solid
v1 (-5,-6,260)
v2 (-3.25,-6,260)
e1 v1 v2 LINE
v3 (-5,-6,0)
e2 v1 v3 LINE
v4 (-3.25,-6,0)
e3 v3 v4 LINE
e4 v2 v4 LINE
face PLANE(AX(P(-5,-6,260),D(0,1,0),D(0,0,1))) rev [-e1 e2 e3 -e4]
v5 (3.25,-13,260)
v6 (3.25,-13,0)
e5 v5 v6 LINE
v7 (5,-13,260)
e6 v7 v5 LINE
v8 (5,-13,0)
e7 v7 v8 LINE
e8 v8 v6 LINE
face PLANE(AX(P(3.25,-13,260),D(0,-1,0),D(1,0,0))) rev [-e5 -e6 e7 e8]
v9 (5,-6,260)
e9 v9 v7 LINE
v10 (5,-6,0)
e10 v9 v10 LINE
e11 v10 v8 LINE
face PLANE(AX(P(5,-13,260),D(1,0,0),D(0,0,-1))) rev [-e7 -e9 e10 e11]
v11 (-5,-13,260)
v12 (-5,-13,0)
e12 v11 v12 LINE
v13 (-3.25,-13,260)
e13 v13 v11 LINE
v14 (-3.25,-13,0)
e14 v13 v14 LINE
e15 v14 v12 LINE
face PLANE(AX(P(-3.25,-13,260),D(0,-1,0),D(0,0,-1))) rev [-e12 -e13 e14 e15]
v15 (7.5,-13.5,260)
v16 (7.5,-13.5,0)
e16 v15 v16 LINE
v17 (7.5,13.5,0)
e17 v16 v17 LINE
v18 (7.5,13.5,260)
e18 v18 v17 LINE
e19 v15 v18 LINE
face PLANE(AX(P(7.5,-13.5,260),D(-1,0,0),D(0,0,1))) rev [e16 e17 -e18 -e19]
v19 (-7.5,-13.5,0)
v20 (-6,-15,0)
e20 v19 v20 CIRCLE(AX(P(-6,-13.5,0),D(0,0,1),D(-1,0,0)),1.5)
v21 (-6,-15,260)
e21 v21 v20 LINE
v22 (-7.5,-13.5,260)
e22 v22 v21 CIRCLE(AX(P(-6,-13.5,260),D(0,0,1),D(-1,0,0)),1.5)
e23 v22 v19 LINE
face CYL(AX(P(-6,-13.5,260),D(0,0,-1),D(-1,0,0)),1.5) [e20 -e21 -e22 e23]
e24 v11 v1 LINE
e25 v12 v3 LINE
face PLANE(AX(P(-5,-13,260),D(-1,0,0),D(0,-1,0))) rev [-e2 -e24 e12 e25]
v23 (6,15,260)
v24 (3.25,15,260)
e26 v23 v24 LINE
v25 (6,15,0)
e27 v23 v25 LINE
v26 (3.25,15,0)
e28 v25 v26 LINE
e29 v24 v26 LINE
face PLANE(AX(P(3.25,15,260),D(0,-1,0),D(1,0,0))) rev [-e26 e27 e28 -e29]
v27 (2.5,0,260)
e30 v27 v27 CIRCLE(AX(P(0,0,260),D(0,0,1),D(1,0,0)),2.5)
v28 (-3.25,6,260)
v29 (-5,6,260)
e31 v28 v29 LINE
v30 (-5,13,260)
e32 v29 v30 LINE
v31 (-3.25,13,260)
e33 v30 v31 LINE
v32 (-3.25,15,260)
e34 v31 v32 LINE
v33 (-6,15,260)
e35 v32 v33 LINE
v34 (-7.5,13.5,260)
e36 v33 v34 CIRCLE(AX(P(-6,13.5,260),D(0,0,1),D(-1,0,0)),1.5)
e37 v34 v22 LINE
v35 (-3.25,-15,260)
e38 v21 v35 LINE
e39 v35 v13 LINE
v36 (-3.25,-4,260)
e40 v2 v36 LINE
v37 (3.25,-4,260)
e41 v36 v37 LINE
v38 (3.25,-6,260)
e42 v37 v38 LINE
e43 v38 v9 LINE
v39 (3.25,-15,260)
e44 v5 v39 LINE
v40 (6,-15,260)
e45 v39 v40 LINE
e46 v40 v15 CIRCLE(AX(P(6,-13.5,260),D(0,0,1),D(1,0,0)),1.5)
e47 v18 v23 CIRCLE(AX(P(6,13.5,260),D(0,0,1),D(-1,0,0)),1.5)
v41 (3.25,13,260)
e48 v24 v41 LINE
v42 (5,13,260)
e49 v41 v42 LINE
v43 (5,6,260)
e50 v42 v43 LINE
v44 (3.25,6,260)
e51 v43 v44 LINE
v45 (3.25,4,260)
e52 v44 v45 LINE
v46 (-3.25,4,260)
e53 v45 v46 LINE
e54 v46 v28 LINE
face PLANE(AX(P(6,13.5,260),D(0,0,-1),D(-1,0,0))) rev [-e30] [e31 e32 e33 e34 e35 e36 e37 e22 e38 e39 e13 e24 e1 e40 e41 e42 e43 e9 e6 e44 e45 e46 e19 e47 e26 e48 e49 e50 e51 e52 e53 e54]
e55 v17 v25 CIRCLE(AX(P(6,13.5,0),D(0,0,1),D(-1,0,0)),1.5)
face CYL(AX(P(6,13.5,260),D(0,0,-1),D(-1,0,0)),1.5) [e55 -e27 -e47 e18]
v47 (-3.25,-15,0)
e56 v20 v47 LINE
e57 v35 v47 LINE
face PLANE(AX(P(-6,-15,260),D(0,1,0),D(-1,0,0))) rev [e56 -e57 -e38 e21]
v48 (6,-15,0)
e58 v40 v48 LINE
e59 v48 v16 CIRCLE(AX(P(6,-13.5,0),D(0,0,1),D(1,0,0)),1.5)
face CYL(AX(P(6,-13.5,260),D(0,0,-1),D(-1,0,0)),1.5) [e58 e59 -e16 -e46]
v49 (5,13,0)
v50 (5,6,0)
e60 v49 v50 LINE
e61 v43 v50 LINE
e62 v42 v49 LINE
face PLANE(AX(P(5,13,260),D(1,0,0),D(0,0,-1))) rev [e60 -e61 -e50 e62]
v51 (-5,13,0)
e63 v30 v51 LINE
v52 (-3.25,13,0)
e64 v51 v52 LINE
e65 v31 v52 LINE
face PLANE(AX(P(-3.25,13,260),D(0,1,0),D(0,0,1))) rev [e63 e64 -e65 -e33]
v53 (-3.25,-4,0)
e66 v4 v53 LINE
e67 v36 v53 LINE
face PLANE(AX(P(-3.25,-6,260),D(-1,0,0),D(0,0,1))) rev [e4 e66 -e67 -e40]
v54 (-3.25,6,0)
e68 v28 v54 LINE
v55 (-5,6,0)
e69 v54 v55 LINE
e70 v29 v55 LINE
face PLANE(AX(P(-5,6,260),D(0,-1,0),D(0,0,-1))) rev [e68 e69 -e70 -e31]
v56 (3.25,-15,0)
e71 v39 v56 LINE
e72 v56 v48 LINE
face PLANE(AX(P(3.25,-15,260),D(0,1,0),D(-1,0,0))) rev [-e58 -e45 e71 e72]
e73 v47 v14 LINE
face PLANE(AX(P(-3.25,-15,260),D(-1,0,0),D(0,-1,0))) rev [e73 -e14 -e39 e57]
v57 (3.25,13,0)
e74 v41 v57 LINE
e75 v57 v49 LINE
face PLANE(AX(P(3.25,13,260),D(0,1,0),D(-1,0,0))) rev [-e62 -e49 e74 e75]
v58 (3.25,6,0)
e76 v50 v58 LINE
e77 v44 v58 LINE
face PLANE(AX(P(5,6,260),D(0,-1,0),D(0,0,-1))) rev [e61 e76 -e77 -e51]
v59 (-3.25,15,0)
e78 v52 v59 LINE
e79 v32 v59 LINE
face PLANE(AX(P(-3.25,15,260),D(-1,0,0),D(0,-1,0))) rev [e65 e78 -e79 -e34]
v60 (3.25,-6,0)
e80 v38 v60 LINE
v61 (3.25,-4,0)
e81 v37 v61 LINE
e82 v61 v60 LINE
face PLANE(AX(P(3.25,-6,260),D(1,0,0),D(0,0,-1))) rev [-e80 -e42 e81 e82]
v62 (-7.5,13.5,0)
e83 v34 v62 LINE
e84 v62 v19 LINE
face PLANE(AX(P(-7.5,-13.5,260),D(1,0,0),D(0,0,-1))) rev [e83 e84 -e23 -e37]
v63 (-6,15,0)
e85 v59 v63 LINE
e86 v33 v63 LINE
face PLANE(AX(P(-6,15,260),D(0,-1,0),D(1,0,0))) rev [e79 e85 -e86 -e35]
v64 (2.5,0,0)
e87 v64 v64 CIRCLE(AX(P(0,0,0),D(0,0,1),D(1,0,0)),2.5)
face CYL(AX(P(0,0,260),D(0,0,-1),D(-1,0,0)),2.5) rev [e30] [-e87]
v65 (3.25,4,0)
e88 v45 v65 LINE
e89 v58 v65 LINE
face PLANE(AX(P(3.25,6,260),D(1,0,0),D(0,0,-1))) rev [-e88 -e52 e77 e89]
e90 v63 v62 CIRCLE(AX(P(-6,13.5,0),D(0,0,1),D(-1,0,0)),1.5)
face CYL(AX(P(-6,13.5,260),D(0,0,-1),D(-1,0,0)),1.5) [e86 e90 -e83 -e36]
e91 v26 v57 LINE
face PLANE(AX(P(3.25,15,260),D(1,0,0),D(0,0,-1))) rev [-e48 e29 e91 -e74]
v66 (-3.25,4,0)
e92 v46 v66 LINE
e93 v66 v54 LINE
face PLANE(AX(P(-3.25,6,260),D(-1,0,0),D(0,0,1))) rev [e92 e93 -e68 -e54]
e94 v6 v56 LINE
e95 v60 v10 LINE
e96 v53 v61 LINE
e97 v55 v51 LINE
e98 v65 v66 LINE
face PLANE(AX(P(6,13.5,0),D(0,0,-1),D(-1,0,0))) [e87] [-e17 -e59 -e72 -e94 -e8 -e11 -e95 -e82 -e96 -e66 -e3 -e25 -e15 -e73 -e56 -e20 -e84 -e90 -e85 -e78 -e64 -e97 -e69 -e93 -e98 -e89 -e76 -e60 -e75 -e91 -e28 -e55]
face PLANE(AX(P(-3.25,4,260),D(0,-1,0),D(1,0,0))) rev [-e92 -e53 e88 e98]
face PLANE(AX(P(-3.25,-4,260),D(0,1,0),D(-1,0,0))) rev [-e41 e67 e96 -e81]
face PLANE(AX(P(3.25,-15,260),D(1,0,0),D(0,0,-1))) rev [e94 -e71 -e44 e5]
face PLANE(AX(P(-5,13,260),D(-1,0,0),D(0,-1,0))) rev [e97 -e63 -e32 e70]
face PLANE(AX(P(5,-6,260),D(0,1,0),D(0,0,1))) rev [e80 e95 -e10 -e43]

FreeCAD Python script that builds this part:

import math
import FreeCAD as App
import Part
import Sketcher

doc = App.newDocument("Part")
body = doc.addObject("PartDesign::Body", "Body")

# Sketch on XY plane
sketch1 = body.newObject("Sketcher::SketchObject", "Sketch")
sketch1.AttachmentSupport = (doc.getObject("XY_Plane"), [""])
sketch1.MapMode = "FlatFace"
sketch1.addGeometry([
    Part.LineSegment(App.Vector(-6, -15, 0), App.Vector(-3.2, -15, 0)),  # 0
    Part.LineSegment(App.Vector(-3.2, -15, 0), App.Vector(-3.2, -13, 0)),  # 1
    Part.LineSegment(App.Vector(-3.2, -13, 0), App.Vector(-5, -13, 0)),  # 2
    Part.LineSegment(App.Vector(-5, -13, 0), App.Vector(-5, -6, 0)),  # 3
    Part.LineSegment(App.Vector(-5, -6, 0), App.Vector(-3.2, -6, 0)),  # 4
    Part.LineSegment(App.Vector(-3.2, -6, 0), App.Vector(-3.2, -4, 0)),  # 5
    Part.LineSegment(App.Vector(-3.2, -4, 0), App.Vector(3.2, -4, 0)),  # 6
    Part.LineSegment(App.Vector(3.2, -4, 0), App.Vector(3.2, -6, 0)),  # 7
    Part.LineSegment(App.Vector(3.2, -6, 0), App.Vector(5, -6, 0)),  # 8
    Part.LineSegment(App.Vector(5, -6, 0), App.Vector(5, -13, 0)),  # 9
    Part.LineSegment(App.Vector(5, -13, 0), App.Vector(3.2, -13, 0)),  # 10
    Part.LineSegment(App.Vector(3.2, -13, 0), App.Vector(3.2, -15, 0)),  # 11
    Part.LineSegment(App.Vector(3.2, -15, 0), App.Vector(6, -15, 0)),  # 12
    Part.ArcOfCircle(Part.Circle(App.Vector(6, -13.5, 0), App.Vector(0, 0, 1), 1.5), math.radians(-90), math.radians(0)),  # 13
    Part.LineSegment(App.Vector(7.5, -13.5, 0), App.Vector(7.5, 13.5, 0)),  # 14
    Part.ArcOfCircle(Part.Circle(App.Vector(6, 13.5, 0), App.Vector(0, 0, 1), 1.5), math.radians(0), math.radians(90)),  # 15
    Part.LineSegment(App.Vector(6, 15, 0), App.Vector(3.2, 15, 0)),  # 16
    Part.LineSegment(App.Vector(3.2, 15, 0), App.Vector(3.2, 13, 0)),  # 17
    Part.LineSegment(App.Vector(3.2, 13, 0), App.Vector(5, 13, 0)),  # 18
    Part.LineSegment(App.Vector(5, 13, 0), App.Vector(5, 6, 0)),  # 19
    Part.LineSegment(App.Vector(5, 6, 0), App.Vector(3.2, 6, 0)),  # 20
    Part.LineSegment(App.Vector(3.2, 6, 0), App.Vector(3.2, 4, 0)),  # 21
    Part.LineSegment(App.Vector(3.2, 4, 0), App.Vector(-3.2, 4, 0)),  # 22
    Part.LineSegment(App.Vector(-3.2, 4, 0), App.Vector(-3.2, 6, 0)),  # 23
    Part.LineSegment(App.Vector(-3.2, 6, 0), App.Vector(-5, 6, 0)),  # 24
    Part.LineSegment(App.Vector(-5, 6, 0), App.Vector(-5, 13, 0)),  # 25
    Part.LineSegment(App.Vector(-5, 13, 0), App.Vector(-3.2, 13, 0)),  # 26
    Part.LineSegment(App.Vector(-3.2, 13, 0), App.Vector(-3.2, 15, 0)),  # 27
    Part.LineSegment(App.Vector(-3.2, 15, 0), App.Vector(-6, 15, 0)),  # 28
    Part.ArcOfCircle(Part.Circle(App.Vector(-6, 13.5, 0), App.Vector(0, 0, 1), 1.5), math.radians(90), math.radians(180)),  # 29
    Part.LineSegment(App.Vector(-7.5, 13.5, 0), App.Vector(-7.5, -13.5, 0)),  # 30
    Part.ArcOfCircle(Part.Circle(App.Vector(-6, -13.5, 0), App.Vector(0, 0, 1), 1.5), math.radians(180), math.radians(270)),  # 31
    Part.Circle(App.Vector(0, 0, 0), App.Vector(0, 0, 1), 2.5),  # 32
], False)
sketch1.addConstraint([
    Sketcher.Constraint("Coincident", 0, 2, 1, 1),
    Sketcher.Constraint("Coincident", 1, 2, 2, 1),
    Sketcher.Constraint("Coincident", 2, 2, 3, 1),
    Sketcher.Constraint("Coincident", 3, 2, 4, 1),
    Sketcher.Constraint("Coincident", 4, 2, 5, 1),
    Sketcher.Constraint("Coincident", 5, 2, 6, 1),
    Sketcher.Constraint("Coincident", 6, 2, 7, 1),
    Sketcher.Constraint("Coincident", 7, 2, 8, 1),
    Sketcher.Constraint("Coincident", 8, 2, 9, 1),
    Sketcher.Constraint("Coincident", 9, 2, 10, 1),
    Sketcher.Constraint("Coincident", 10, 2, 11, 1),
    Sketcher.Constraint("Coincident", 11, 2, 12, 1),
    Sketcher.Constraint("Tangent", 12, 2, 13, 1),
    Sketcher.Constraint("Tangent", 13, 2, 14, 1),
    Sketcher.Constraint("Tangent", 14, 2, 15, 1),
    Sketcher.Constraint("Tangent", 15, 2, 16, 1),
    Sketcher.Constraint("Coincident", 16, 2, 17, 1),
    Sketcher.Constraint("Coincident", 17, 2, 18, 1),
    Sketcher.Constraint("Coincident", 18, 2, 19, 1),
    Sketcher.Constraint("Coincident", 19, 2, 20, 1),
    Sketcher.Constraint("Coincident", 20, 2, 21, 1),
    Sketcher.Constraint("Coincident", 21, 2, 22, 1),
    Sketcher.Constraint("Coincident", 22, 2, 23, 1),
    Sketcher.Constraint("Coincident", 23, 2, 24, 1),
    Sketcher.Constraint("Coincident", 24, 2, 25, 1),
    Sketcher.Constraint("Coincident", 25, 2, 26, 1),
    Sketcher.Constraint("Coincident", 26, 2, 27, 1),
    Sketcher.Constraint("Coincident", 27, 2, 28, 1),
    Sketcher.Constraint("Tangent", 28, 2, 29, 1),
    Sketcher.Constraint("Tangent", 29, 2, 30, 1),
    Sketcher.Constraint("Tangent", 30, 2, 31, 1),
    Sketcher.Constraint("Tangent", 31, 2, 0, 1),
    Sketcher.Constraint("Horizontal", 0),
    Sketcher.Constraint("Vertical", 1),
    Sketcher.Constraint("Horizontal", 2),
    Sketcher.Constraint("Vertical", 3),
    Sketcher.Constraint("Horizontal", 4),
    Sketcher.Constraint("Vertical", 5),
    Sketcher.Constraint("Horizontal", 6),
    Sketcher.Constraint("Vertical", 7),
    Sketcher.Constraint("Horizontal", 8),
    Sketcher.Constraint("Vertical", 9),
    Sketcher.Constraint("Horizontal", 10),
    Sketcher.Constraint("Vertical", 11),
    Sketcher.Constraint("Horizontal", 12),
    Sketcher.Constraint("Vertical", 14),
    Sketcher.Constraint("Horizontal", 16),
    Sketcher.Constraint("Vertical", 17),
    Sketcher.Constraint("Horizontal", 18),
    Sketcher.Constraint("Vertical", 19),
    Sketcher.Constraint("Horizontal", 20),
    Sketcher.Constraint("Vertical", 21),
    Sketcher.Constraint("Horizontal", 22),
    Sketcher.Constraint("Vertical", 23),
    Sketcher.Constraint("Horizontal", 24),
    Sketcher.Constraint("Vertical", 25),
    Sketcher.Constraint("Horizontal", 26),
    Sketcher.Constraint("Vertical", 27),
    Sketcher.Constraint("Horizontal", 28),
    Sketcher.Constraint("Vertical", 30),
    Sketcher.Constraint("Coincident", 32, 3, -1, 1),
    Sketcher.Constraint("Equal", 13, 15),
    Sketcher.Constraint("Equal", 15, 29),
    Sketcher.Constraint("Equal", 29, 31),
    Sketcher.Constraint("Symmetric", 13, 3, 29, 3, -1, 1),
    Sketcher.Constraint("Symmetric", 0, 2, 16, 2, -1, 1),
    Sketcher.Constraint("Symmetric", 2, 2, 18, 2, -1, 1),
    Sketcher.Constraint("Symmetric", 4, 2, 20, 2, -1, 1),
    Sketcher.Constraint("Symmetric", 6, 2, 22, 2, -1, 1),
    Sketcher.Constraint("Symmetric", 8, 2, 24, 2, -1, 1),
    Sketcher.Constraint("Symmetric", 10, 2, 26, 2, -1, 1),
    Sketcher.Constraint("Symmetric", 4, 2, 7, 2, -2),
    Sketcher.Constraint("Symmetric", 2, 2, 9, 2, -2),
    Sketcher.Constraint("Symmetric", 0, 2, 11, 2, -2),
    Sketcher.Constraint("Vertical", 1, 2, 4, 2),
    Sketcher.Constraint("Equal", 1, 5),
    Sketcher.Constraint("Diameter", 32, 5.0),
    Sketcher.Constraint("Radius", 13, 1.5),
    Sketcher.Constraint("DistanceY", 1, 1, 1, 2, 2.0),
    Sketcher.Constraint("DistanceY", 3, 1, 3, 2, 7.0),
    Sketcher.Constraint("DistanceY", 14, 1, 14, 2, 27.0),
    Sketcher.Constraint("DistanceX", 6, 1, 6, 2, 6.5),
    Sketcher.Constraint("DistanceX", -1, 1, 13, 3, 6.0),
    Sketcher.Constraint("DistanceX", 2, 2, -1, 1, 5.0),
])
pad1 = body.newObject("PartDesign::Pad", "Pad")
pad1.Profile = sketch1
pad1.Length = 260

# Sketch on XY plane
sketch2 = body.newObject("Sketcher::SketchObject", "Sketch001")
sketch2.AttachmentSupport = (doc.getObject("XY_Plane"), [""])
sketch2.MapMode = "FlatFace"
sketch2.AttachmentOffset = App.Placement(App.Vector(0, 0, 260), App.Rotation())
sketch2.addGeometry(Part.Circle(App.Vector(0, 0, 0), App.Vector(0, 0, 1), 2.5), False)
sketch2.addConstraint([
    Sketcher.Constraint("Coincident", 0, 3, -1, 1),
    Sketcher.Constraint("Diameter", 0, 5.0),
])
doc.recompute()
hole = body.newObject("PartDesign::Hole", "Hole")
hole.Profile = sketch2
hole.ThreadType = "None"
hole.Diameter = 5
hole.DepthType = "Dimension"
hole.Depth = 20
hole.DrillPoint = "Angled"
hole.DrillPointAngle = 118

# Sketch on XY plane
sketch3 = body.newObject("Sketcher::SketchObject", "Sketch002")
sketch3.AttachmentSupport = (doc.getObject("XY_Plane"), [""])
sketch3.MapMode = "FlatFace"
sketch3.addGeometry(Part.Circle(App.Vector(0, 0, 0), App.Vector(0, 0, 1), 2.5), False)
sketch3.addConstraint([
    Sketcher.Constraint("Coincident", 0, 3, -1, 1),
    Sketcher.Constraint("Diameter", 0, 5.0),
])
doc.recompute()
hole2 = body.newObject("PartDesign::Hole", "Hole001")
hole2.Profile = sketch3
hole2.ThreadType = "None"
hole2.Diameter = 5
hole2.DepthType = "Dimension"
hole2.Depth = 20
hole2.DrillPoint = "Angled"
hole2.DrillPointAngle = 118
hole2.Reversed = True

doc.recompute()
